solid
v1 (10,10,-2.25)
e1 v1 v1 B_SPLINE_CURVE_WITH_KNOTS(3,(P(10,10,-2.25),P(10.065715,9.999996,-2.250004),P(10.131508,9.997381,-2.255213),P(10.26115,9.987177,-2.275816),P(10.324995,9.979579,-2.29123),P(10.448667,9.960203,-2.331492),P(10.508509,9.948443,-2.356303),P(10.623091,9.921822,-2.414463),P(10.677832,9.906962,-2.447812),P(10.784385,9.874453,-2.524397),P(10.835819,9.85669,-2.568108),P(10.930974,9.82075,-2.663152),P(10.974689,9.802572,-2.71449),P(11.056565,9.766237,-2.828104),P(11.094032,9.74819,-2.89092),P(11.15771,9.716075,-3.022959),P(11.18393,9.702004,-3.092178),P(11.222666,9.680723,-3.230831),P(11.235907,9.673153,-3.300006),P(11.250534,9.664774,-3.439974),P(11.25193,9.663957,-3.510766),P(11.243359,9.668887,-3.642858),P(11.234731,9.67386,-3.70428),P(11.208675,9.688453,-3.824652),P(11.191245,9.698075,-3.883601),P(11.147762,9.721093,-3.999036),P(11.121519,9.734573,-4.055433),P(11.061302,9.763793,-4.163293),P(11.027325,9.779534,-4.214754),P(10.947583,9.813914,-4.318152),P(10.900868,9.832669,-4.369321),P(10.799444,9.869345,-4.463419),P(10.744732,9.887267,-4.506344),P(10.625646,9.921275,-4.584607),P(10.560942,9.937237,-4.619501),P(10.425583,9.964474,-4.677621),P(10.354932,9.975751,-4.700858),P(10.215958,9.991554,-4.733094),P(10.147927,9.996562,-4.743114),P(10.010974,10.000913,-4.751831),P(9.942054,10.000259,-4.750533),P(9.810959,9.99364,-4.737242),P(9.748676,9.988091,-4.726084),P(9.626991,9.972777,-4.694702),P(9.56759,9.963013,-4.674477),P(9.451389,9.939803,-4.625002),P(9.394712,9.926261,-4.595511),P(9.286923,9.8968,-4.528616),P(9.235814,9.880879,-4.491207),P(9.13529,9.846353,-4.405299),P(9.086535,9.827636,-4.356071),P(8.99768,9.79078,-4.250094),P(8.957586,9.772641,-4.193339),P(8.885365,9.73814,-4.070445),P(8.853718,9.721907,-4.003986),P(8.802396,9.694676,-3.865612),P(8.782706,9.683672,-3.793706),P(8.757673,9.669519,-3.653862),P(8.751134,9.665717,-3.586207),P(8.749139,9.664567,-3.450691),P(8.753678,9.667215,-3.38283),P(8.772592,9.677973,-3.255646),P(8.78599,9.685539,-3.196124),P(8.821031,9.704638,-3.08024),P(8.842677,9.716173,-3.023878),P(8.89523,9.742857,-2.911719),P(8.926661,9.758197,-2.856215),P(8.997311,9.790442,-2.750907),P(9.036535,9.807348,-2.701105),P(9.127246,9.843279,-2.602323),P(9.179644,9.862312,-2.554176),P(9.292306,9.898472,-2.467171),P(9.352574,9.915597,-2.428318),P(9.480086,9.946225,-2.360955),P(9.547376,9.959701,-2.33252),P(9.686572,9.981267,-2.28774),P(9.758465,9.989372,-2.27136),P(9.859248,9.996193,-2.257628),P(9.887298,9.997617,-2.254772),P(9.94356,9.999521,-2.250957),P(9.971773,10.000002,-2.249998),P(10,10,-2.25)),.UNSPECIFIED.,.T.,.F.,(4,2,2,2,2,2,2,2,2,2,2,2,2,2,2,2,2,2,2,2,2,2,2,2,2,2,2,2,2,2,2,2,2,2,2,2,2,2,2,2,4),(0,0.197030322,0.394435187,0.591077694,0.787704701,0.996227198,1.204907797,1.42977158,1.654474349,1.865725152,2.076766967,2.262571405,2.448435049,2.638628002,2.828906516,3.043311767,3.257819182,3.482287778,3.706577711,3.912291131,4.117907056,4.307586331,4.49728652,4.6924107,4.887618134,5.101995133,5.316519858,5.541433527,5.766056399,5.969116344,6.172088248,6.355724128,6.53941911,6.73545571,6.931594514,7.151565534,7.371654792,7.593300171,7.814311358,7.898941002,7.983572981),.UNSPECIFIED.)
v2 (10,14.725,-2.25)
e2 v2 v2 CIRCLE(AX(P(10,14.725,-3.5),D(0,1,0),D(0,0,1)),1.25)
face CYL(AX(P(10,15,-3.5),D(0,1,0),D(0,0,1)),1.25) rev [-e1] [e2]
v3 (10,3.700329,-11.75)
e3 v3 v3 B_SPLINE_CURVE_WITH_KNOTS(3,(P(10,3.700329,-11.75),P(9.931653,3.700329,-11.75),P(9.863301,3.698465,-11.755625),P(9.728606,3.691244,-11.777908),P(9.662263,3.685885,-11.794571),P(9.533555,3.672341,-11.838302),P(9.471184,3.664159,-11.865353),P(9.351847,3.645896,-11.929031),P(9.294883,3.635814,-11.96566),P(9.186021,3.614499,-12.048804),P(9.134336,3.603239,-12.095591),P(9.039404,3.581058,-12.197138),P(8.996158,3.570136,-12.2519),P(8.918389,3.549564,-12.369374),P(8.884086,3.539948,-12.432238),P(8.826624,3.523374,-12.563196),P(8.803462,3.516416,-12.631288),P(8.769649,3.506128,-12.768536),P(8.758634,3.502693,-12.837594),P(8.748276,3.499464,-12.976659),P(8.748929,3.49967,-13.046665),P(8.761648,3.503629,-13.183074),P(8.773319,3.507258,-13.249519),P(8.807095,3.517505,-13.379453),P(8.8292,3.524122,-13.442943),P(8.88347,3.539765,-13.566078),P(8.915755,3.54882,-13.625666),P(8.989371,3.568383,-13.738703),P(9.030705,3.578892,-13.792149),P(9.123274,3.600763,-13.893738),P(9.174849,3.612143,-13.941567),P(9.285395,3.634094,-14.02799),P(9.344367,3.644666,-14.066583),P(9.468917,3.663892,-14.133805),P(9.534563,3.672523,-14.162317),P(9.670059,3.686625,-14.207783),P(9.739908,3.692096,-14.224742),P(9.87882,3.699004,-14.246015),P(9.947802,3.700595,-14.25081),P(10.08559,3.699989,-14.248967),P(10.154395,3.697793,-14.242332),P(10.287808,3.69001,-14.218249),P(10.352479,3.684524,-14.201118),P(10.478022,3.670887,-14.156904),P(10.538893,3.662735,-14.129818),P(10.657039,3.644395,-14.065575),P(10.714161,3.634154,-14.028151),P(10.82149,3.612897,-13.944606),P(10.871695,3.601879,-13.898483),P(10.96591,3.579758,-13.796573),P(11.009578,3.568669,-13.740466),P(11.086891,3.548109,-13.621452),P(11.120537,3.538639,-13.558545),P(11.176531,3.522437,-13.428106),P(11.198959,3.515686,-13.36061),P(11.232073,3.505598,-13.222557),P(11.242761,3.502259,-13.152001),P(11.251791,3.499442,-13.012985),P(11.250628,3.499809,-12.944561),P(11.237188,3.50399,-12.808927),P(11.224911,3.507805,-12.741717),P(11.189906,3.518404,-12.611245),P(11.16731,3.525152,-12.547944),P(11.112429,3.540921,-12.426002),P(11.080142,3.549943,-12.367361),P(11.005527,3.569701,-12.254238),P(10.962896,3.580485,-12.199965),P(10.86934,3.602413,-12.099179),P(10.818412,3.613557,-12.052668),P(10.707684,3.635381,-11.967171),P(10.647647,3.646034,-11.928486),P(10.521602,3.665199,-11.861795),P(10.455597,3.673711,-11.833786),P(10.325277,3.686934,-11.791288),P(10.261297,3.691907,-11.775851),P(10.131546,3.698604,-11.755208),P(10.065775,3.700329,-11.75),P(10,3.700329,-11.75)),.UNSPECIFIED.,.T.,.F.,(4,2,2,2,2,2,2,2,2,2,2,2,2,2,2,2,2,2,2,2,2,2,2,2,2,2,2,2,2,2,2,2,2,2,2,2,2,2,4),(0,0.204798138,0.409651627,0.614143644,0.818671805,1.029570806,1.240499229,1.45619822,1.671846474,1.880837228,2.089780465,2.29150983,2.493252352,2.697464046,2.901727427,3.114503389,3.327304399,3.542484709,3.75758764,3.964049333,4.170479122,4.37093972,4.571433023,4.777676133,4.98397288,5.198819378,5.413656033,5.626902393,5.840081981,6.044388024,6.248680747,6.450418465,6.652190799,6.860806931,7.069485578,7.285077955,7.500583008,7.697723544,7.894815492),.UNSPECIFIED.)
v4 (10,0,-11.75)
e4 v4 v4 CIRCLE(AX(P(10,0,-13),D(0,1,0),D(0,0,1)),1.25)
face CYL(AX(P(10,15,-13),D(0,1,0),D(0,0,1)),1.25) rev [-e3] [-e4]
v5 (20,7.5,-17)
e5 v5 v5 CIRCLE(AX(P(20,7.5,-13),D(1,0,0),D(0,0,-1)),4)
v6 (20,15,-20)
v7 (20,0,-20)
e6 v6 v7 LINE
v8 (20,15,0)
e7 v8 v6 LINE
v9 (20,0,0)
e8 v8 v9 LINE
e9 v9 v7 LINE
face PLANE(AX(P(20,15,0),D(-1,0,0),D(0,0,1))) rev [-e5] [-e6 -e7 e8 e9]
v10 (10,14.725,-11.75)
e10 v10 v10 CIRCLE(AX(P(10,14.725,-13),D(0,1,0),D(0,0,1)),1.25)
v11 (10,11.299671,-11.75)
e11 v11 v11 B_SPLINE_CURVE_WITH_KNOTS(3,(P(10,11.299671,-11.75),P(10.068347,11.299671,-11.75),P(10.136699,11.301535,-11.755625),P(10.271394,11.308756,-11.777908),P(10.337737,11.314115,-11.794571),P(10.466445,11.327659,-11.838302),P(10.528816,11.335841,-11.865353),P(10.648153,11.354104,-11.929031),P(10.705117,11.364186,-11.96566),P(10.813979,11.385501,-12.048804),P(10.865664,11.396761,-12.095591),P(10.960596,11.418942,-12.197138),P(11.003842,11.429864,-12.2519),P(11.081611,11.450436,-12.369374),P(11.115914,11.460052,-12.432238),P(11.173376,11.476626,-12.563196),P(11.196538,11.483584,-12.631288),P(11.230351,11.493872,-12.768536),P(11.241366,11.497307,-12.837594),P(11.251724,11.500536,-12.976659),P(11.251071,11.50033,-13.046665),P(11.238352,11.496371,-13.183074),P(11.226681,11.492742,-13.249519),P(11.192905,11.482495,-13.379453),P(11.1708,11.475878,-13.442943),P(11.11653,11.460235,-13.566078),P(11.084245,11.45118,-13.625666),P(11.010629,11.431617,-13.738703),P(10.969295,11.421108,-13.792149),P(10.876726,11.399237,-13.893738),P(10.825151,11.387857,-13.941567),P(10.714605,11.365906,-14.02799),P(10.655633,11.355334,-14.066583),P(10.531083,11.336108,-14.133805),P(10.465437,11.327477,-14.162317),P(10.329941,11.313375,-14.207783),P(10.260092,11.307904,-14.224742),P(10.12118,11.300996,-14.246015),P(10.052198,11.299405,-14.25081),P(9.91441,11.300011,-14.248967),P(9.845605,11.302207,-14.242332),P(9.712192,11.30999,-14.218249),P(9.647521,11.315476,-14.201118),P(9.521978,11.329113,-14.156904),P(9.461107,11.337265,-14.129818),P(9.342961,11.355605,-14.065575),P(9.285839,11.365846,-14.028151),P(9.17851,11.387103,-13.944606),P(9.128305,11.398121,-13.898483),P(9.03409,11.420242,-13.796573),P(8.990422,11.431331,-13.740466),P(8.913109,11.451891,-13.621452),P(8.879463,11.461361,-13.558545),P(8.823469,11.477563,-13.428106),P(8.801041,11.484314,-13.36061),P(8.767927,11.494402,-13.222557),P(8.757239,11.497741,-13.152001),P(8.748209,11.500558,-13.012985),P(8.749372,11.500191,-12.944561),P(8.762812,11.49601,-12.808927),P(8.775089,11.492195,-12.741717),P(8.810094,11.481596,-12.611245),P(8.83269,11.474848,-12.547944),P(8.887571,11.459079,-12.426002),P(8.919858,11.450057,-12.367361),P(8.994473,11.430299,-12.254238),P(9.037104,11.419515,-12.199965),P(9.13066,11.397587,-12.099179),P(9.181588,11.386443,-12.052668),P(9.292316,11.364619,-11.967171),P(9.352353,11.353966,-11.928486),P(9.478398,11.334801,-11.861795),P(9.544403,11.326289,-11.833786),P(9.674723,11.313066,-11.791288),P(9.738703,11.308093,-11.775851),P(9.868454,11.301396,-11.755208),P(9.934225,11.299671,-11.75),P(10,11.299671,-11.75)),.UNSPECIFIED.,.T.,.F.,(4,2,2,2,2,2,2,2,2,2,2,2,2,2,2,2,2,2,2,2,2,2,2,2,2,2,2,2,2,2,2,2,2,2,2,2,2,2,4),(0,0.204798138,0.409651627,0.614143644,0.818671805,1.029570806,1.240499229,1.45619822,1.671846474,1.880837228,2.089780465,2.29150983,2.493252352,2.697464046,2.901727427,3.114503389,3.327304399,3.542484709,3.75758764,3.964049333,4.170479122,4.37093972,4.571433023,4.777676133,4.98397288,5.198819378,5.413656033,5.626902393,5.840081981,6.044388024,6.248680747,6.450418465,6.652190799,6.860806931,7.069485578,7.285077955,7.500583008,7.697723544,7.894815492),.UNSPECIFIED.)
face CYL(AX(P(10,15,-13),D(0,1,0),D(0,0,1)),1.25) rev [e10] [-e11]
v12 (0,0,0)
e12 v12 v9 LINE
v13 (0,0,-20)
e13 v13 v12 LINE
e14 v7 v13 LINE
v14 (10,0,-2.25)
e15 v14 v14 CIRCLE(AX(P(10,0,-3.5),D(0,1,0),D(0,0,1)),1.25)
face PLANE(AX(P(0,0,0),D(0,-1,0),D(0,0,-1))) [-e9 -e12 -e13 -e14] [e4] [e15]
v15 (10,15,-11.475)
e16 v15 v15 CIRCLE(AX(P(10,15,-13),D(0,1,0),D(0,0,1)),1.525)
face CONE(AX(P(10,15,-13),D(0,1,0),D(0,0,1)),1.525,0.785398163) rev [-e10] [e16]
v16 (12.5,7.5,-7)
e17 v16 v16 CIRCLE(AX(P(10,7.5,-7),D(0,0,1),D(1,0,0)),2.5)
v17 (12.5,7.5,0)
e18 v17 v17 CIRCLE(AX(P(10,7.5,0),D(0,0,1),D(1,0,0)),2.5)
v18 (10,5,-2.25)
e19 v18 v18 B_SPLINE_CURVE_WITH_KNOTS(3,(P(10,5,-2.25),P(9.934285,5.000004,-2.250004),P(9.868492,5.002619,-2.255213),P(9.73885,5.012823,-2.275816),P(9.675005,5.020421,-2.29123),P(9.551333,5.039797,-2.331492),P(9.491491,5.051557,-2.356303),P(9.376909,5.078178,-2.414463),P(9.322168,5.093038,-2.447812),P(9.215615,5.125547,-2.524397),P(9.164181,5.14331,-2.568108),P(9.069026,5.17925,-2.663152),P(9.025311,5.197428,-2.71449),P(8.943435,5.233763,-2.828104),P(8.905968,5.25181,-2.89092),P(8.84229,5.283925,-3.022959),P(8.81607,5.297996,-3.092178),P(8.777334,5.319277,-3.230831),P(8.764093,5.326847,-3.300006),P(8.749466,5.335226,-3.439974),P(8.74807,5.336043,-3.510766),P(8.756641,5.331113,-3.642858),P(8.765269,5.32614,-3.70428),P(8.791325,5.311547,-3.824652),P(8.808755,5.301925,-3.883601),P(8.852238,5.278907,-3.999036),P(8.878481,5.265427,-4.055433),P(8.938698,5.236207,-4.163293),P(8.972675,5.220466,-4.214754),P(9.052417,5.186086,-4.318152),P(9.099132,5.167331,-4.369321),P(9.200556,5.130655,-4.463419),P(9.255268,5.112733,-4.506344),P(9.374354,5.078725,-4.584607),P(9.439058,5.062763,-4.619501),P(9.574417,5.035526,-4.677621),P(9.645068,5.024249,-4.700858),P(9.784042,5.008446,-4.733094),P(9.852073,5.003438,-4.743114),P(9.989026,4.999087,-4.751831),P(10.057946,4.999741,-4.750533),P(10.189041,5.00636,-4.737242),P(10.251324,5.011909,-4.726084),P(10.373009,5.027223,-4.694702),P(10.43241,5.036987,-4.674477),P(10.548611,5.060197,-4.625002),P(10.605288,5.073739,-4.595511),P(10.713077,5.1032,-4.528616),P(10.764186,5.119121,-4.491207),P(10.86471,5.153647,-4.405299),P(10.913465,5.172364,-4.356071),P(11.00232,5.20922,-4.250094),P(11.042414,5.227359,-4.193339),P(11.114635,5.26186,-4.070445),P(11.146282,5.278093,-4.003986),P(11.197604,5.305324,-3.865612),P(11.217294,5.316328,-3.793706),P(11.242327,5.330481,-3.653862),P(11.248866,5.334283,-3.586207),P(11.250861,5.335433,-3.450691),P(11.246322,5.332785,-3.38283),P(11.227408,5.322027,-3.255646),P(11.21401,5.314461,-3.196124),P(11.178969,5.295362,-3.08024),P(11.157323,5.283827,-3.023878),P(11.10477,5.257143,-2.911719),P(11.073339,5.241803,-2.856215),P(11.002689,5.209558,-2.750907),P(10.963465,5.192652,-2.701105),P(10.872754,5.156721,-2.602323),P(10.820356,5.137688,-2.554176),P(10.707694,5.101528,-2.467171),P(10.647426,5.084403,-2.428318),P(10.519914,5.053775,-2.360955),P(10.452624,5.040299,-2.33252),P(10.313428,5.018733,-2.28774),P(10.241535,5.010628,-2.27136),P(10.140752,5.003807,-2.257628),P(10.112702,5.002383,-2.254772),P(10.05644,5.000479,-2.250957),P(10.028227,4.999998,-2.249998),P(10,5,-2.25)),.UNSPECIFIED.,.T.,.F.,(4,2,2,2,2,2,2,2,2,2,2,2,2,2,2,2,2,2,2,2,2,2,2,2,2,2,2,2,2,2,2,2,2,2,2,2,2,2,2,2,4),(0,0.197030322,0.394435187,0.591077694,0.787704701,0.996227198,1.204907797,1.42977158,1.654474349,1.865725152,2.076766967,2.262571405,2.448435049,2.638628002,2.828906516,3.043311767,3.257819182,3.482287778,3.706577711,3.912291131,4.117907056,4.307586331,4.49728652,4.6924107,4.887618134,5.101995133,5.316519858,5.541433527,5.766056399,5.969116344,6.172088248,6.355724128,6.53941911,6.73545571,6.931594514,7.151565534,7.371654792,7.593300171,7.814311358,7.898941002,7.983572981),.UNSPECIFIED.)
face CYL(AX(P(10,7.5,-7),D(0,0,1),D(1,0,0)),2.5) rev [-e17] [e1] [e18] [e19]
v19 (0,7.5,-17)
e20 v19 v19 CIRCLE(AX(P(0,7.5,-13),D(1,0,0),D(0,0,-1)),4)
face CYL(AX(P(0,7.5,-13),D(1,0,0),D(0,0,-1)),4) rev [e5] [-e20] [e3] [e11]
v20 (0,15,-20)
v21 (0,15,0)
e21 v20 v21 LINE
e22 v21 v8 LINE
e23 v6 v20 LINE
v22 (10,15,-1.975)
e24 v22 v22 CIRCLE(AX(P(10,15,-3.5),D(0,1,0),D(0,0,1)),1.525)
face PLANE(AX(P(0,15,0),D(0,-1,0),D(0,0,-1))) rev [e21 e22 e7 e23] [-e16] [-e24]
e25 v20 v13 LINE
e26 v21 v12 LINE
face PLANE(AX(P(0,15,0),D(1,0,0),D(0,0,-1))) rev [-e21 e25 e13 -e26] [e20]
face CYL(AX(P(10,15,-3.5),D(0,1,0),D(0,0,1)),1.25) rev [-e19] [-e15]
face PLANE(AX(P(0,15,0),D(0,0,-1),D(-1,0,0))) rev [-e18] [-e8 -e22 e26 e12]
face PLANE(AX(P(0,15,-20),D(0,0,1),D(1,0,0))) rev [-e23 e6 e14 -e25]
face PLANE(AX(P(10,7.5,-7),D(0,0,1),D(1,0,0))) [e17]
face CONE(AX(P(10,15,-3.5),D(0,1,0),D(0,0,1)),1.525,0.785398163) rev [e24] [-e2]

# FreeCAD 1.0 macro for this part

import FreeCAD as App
import Part
import Sketcher

V = App.Vector

doc = App.newDocument("Part")
body = doc.addObject("PartDesign::Body", "Body")

sketch1 = body.newObject("Sketcher::SketchObject", "Sketch")
sketch1.AttachmentSupport = (doc.getObject("XZ_Plane"), [""])
sketch1.MapMode = "FlatFace"
sketch1.addGeometry(Part.LineSegment(V(0, -20, 0), V(0, 0, 0)), False)
sketch1.addGeometry(Part.LineSegment(V(0, 0, 0), V(20, 0, 0)), False)
sketch1.addGeometry(Part.LineSegment(V(20, 0, 0), V(20, -20, 0)), False)
sketch1.addGeometry(Part.LineSegment(V(20, -20, 0), V(0, -20, 0)), False)
sketch1.addConstraint(Sketcher.Constraint("Coincident", 0, 2, 1, 1))
sketch1.addConstraint(Sketcher.Constraint("Coincident", 1, 2, 2, 1))
sketch1.addConstraint(Sketcher.Constraint("Coincident", 2, 2, 3, 1))
sketch1.addConstraint(Sketcher.Constraint("Coincident", 3, 2, 0, 1))
sketch1.addConstraint(Sketcher.Constraint("Vertical", 0))
sketch1.addConstraint(Sketcher.Constraint("Horizontal", 1))
sketch1.addConstraint(Sketcher.Constraint("Vertical", 2))
sketch1.addConstraint(Sketcher.Constraint("Horizontal", 3))
sketch1.addConstraint(Sketcher.Constraint("Coincident", 0, 2, -1, 1))
sketch1.addConstraint(Sketcher.Constraint("Equal", 3, 0))
sketch1.addConstraint(Sketcher.Constraint("DistanceX", 1, 1, 1, 2, 20.0))
pad1 = body.newObject("PartDesign::Pad", "Pad")
pad1.Profile = sketch1
pad1.Length = 15
pad1.Reversed = True

sketch2 = body.newObject("Sketcher::SketchObject", "Sketch001")
sketch2.AttachmentSupport = (doc.getObject("XY_Plane"), [""])
sketch2.MapMode = "FlatFace"
sketch2.addGeometry(Part.Circle(V(10, 7.5, 0), V(0, 0, 1), 2.5), False)
sketch2.addConstraint(Sketcher.Constraint("Diameter", 0, 5.0))
sketch2.addConstraint(Sketcher.Constraint("DistanceX", -1, 1, 0, 3, 10.0))
sketch2.addConstraint(Sketcher.Constraint("DistanceY", -1, 1, 0, 3, 7.5))
pocket1 = body.newObject("PartDesign::Pocket", "Pocket")
pocket1.Profile = sketch2
pocket1.Length = 7

sketch3 = body.newObject("Sketcher::SketchObject", "Sketch002")
sketch3.AttachmentSupport = (doc.getObject("YZ_Plane"), [""])
sketch3.MapMode = "FlatFace"
sketch3.AttachmentOffset = App.Placement(V(0, 0, 20), App.Rotation())
sketch3.addGeometry(Part.Circle(V(7.5, -13, 0), V(0, 0, 1), 4), False)
sketch3.addConstraint(Sketcher.Constraint("Diameter", 0, 8.0))
sketch3.addConstraint(Sketcher.Constraint("DistanceY", 0, 3, -1, 1, 13.0))
sketch3.addConstraint(Sketcher.Constraint("DistanceX", -1, 1, 0, 3, 7.5))
pocket2 = body.newObject("PartDesign::Pocket", "Pocket001")
pocket2.Profile = sketch3
pocket2.Type = "ThroughAll"

sketch4 = body.newObject("Sketcher::SketchObject", "Sketch003")
sketch4.AttachmentSupport = (doc.getObject("XZ_Plane"), [""])
sketch4.MapMode = "FlatFace"
sketch4.AttachmentOffset = App.Placement(V(0, 0, -15), App.Rotation())
sketch4.addGeometry(Part.Circle(V(10, -3.5, 0), V(0, 0, 1), 1.25), False)
sketch4.addGeometry(Part.Circle(V(10, -13, 0), V(0, 0, 1), 1.25), False)
sketch4.addConstraint(Sketcher.Constraint("Equal", 0, 1))
sketch4.addConstraint(Sketcher.Constraint("Vertical", 0, 3, 1, 3))
sketch4.addConstraint(Sketcher.Constraint("Diameter", 0, 2.5))
sketch4.addConstraint(Sketcher.Constraint("DistanceX", -1, 1, 0, 3, 10.0))
sketch4.addConstraint(Sketcher.Constraint("DistanceY", 1, 3, -1, 1, 13.0))
sketch4.addConstraint(Sketcher.Constraint("DistanceY", 0, 3, -1, 1, 3.5))
doc.recompute()
hole = body.newObject("PartDesign::Hole", "Hole")
hole.Profile = sketch4
hole.ThreadType = "None"
hole.Diameter = 2.5
hole.DepthType = "ThroughAll"
hole.HoleCutType = "Countersink"
hole.HoleCutDiameter = 3.05
hole.HoleCutCountersinkAngle = 90
hole.Reversed = True

doc.recompute()
